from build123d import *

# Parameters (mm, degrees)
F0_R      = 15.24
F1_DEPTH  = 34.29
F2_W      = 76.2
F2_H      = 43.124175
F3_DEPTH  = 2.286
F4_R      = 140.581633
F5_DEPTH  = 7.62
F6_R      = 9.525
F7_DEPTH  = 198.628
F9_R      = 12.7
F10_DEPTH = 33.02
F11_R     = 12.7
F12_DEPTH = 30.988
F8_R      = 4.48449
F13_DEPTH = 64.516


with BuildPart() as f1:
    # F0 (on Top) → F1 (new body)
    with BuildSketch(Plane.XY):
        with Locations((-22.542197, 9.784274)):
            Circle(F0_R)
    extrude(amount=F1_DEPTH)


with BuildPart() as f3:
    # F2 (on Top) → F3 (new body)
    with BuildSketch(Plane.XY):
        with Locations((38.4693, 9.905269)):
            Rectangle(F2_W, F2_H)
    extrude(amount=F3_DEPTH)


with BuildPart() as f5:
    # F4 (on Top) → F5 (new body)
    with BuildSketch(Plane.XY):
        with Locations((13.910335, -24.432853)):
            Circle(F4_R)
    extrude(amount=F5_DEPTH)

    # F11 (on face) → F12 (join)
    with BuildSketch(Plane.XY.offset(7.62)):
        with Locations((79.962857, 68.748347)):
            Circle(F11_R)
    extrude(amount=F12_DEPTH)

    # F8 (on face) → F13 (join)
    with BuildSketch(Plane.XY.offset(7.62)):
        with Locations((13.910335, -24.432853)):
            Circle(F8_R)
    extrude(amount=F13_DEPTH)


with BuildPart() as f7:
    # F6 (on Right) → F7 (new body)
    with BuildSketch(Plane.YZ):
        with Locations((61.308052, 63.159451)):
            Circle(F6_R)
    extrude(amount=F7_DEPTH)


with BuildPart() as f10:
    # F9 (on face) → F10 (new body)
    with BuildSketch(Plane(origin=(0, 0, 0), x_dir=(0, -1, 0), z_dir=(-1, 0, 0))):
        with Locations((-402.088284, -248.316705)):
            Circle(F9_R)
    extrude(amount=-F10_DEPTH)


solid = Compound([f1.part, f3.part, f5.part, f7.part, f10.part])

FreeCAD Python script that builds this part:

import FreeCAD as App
import Part
import Sketcher

V = App.Vector
Q = App.Units.Quantity

doc = App.newDocument("Part")
body = doc.addObject("PartDesign::Body", "Body")

sketch1 = body.newObject("Sketcher::SketchObject", "Sketch")
sketch1.AttachmentSupport = (doc.getObject("XY_Plane"), [""])
sketch1.MapMode = "FlatFace"
sketch1.addGeometry(Part.Circle(V(-22.542197, 9.784274, 0), V(0, 0, 1), 15.24), False)
sketch1.addConstraint(Sketcher.Constraint("Diameter", 0, Q("1.2 in")))
sketch1.addConstraint(Sketcher.Constraint("DistanceX", 0, 3, -1, 1, Q("22.542197 mm")))
sketch1.addConstraint(Sketcher.Constraint("DistanceY", -1, 1, 0, 3, Q("9.784274 mm")))
pad1 = body.newObject("PartDesign::Pad", "Pad")
pad1.Profile = sketch1
pad1.Length = Q("1.35 in")
body2 = doc.addObject("PartDesign::Body", "Body001")

sketch2 = body2.newObject("Sketcher::SketchObject", "Sketch001")
sketch2.AttachmentSupport = (doc.getObject("XY_Plane001"), [""])
sketch2.MapMode = "FlatFace"
sketch2.addGeometry(Part.LineSegment(V(0.3693, 31.467357, 0), V(0.3693, -11.656818, 0)), False)
sketch2.addGeometry(Part.LineSegment(V(0.3693, -11.656818, 0), V(76.5693, -11.656818, 0)), False)
sketch2.addGeometry(Part.LineSegment(V(76.5693, -11.656818, 0), V(76.5693, 31.467357, 0)), False)
sketch2.addGeometry(Part.LineSegment(V(76.5693, 31.467357, 0), V(0.3693, 31.467357, 0)), False)
sketch2.addConstraint(Sketcher.Constraint("Coincident", 0, 2, 1, 1))
sketch2.addConstraint(Sketcher.Constraint("Coincident", 1, 2, 2, 1))
sketch2.addConstraint(Sketcher.Constraint("Coincident", 2, 2, 3, 1))
sketch2.addConstraint(Sketcher.Constraint("Coincident", 3, 2, 0, 1))
sketch2.addConstraint(Sketcher.Constraint("Vertical", 0))
sketch2.addConstraint(Sketcher.Constraint("Horizontal", 1))
sketch2.addConstraint(Sketcher.Constraint("Vertical", 2))
sketch2.addConstraint(Sketcher.Constraint("Horizontal", 3))
sketch2.addConstraint(Sketcher.Constraint("DistanceX", 1, 1, 1, 2, Q("3 in")))
sketch2.addConstraint(Sketcher.Constraint("DistanceX", -1, 1, 0, 2, Q("0.3693 mm")))
sketch2.addConstraint(Sketcher.Constraint("DistanceY", 0, 2, 0, 1, Q("43.124175 mm")))
sketch2.addConstraint(Sketcher.Constraint("DistanceY", 0, 2, -1, 1, Q("11.656818 mm")))
pad2 = body2.newObject("PartDesign::Pad", "Pad001")
pad2.Profile = sketch2
pad2.Length = Q("0.09 in")
body3 = doc.addObject("PartDesign::Body", "Body002")

sketch3 = body3.newObject("Sketcher::SketchObject", "Sketch002")
sketch3.AttachmentSupport = (doc.getObject("XY_Plane002"), [""])
sketch3.MapMode = "FlatFace"
sketch3.addGeometry(Part.Circle(V(13.910335, -24.432853, 0), V(0, 0, 1), 140.581633), False)
sketch3.addConstraint(Sketcher.Constraint("Diameter", 0, Q("281.163266 mm")))
sketch3.addConstraint(Sketcher.Constraint("DistanceX", -1, 1, 0, 3, Q("13.910335 mm")))
sketch3.addConstraint(Sketcher.Constraint("DistanceY", 0, 3, -1, 1, Q("24.432853 mm")))
pad3 = body3.newObject("PartDesign::Pad", "Pad002")
pad3.Profile = sketch3
pad3.Length = Q("0.3 in")

sketch4 = body3.newObject("Sketcher::SketchObject", "Sketch003")
sketch4.AttachmentSupport = (doc.getObject("XY_Plane002"), [""])
sketch4.MapMode = "FlatFace"
sketch4.AttachmentOffset = App.Placement(V(0, 0, 0.3 * 25.4), App.Rotation())
sketch4.addGeometry(Part.Circle(V(79.962857, 68.748347, 0), V(0, 0, 1), 12.7), False)
sketch4.addConstraint(Sketcher.Constraint("Diameter", 0, Q("1 in")))
sketch4.addConstraint(Sketcher.Constraint("DistanceX", -1, 1, 0, 3, Q("79.962857 mm")))
sketch4.addConstraint(Sketcher.Constraint("DistanceY", -1, 1, 0, 3, Q("68.748347 mm")))
pad4 = body3.newObject("PartDesign::Pad", "Pad003")
pad4.Profile = sketch4
pad4.Length = Q("1.22 in")

sketch5 = body3.newObject("Sketcher::SketchObject", "Sketch004")
sketch5.AttachmentSupport = (doc.getObject("XY_Plane002"), [""])
sketch5.MapMode = "FlatFace"
sketch5.AttachmentOffset = App.Placement(V(0, 0, 0.3 * 25.4), App.Rotation())
sketch5.addGeometry(Part.Circle(V(13.910335, -24.432853, 0), V(0, 0, 1), 4.48449), False)
sketch5.addConstraint(Sketcher.Constraint("Diameter", 0, Q("8.96898 mm")))
sketch5.addConstraint(Sketcher.Constraint("DistanceX", -1, 1, 0, 3, Q("13.910335 mm")))
sketch5.addConstraint(Sketcher.Constraint("DistanceY", 0, 3, -1, 1, Q("24.432853 mm")))
pad5 = body3.newObject("PartDesign::Pad", "Pad004")
pad5.Profile = sketch5
pad5.Length = Q("2.54 in")
body4 = doc.addObject("PartDesign::Body", "Body003")

sketch6 = body4.newObject("Sketcher::SketchObject", "Sketch005")
sketch6.AttachmentSupport = (doc.getObject("YZ_Plane003"), [""])
sketch6.MapMode = "FlatFace"
sketch6.addGeometry(Part.Circle(V(61.308052, 63.159451, 0), V(0, 0, 1), 9.525), False)
sketch6.addConstraint(Sketcher.Constraint("Diameter", 0, Q("0.75 in")))
sketch6.addConstraint(Sketcher.Constraint("DistanceY", -1, 1, 0, 3, Q("63.159451 mm")))
sketch6.addConstraint(Sketcher.Constraint("DistanceX", -1, 1, 0, 3, Q("61.308052 mm")))
pad6 = body4.newObject("PartDesign::Pad", "Pad005")
pad6.Profile = sketch6
pad6.Length = Q("7.82 in")
body5 = doc.addObject("PartDesign::Body", "Body004")

sketch7 = body5.newObject("Sketcher::SketchObject", "Sketch006")
sketch7.AttachmentSupport = (doc.getObject("YZ_Plane004"), [""])
sketch7.MapMode = "FlatFace"
sketch7.addGeometry(Part.Circle(V(402.088284, -248.316705, 0), V(0, 0, 1), 12.7), False)
sketch7.addConstraint(Sketcher.Constraint("Diameter", 0, Q("1 in")))
sketch7.addConstraint(Sketcher.Constraint("DistanceX", -1, 1, 0, 3, Q("402.088284 mm")))
sketch7.addConstraint(Sketcher.Constraint("DistanceY", 0, 3, -1, 1, Q("248.316705 mm")))
pad7 = body5.newObject("PartDesign::Pad", "Pad006")
pad7.Profile = sketch7
pad7.Length = Q("1.3 in")

doc.recompute()
